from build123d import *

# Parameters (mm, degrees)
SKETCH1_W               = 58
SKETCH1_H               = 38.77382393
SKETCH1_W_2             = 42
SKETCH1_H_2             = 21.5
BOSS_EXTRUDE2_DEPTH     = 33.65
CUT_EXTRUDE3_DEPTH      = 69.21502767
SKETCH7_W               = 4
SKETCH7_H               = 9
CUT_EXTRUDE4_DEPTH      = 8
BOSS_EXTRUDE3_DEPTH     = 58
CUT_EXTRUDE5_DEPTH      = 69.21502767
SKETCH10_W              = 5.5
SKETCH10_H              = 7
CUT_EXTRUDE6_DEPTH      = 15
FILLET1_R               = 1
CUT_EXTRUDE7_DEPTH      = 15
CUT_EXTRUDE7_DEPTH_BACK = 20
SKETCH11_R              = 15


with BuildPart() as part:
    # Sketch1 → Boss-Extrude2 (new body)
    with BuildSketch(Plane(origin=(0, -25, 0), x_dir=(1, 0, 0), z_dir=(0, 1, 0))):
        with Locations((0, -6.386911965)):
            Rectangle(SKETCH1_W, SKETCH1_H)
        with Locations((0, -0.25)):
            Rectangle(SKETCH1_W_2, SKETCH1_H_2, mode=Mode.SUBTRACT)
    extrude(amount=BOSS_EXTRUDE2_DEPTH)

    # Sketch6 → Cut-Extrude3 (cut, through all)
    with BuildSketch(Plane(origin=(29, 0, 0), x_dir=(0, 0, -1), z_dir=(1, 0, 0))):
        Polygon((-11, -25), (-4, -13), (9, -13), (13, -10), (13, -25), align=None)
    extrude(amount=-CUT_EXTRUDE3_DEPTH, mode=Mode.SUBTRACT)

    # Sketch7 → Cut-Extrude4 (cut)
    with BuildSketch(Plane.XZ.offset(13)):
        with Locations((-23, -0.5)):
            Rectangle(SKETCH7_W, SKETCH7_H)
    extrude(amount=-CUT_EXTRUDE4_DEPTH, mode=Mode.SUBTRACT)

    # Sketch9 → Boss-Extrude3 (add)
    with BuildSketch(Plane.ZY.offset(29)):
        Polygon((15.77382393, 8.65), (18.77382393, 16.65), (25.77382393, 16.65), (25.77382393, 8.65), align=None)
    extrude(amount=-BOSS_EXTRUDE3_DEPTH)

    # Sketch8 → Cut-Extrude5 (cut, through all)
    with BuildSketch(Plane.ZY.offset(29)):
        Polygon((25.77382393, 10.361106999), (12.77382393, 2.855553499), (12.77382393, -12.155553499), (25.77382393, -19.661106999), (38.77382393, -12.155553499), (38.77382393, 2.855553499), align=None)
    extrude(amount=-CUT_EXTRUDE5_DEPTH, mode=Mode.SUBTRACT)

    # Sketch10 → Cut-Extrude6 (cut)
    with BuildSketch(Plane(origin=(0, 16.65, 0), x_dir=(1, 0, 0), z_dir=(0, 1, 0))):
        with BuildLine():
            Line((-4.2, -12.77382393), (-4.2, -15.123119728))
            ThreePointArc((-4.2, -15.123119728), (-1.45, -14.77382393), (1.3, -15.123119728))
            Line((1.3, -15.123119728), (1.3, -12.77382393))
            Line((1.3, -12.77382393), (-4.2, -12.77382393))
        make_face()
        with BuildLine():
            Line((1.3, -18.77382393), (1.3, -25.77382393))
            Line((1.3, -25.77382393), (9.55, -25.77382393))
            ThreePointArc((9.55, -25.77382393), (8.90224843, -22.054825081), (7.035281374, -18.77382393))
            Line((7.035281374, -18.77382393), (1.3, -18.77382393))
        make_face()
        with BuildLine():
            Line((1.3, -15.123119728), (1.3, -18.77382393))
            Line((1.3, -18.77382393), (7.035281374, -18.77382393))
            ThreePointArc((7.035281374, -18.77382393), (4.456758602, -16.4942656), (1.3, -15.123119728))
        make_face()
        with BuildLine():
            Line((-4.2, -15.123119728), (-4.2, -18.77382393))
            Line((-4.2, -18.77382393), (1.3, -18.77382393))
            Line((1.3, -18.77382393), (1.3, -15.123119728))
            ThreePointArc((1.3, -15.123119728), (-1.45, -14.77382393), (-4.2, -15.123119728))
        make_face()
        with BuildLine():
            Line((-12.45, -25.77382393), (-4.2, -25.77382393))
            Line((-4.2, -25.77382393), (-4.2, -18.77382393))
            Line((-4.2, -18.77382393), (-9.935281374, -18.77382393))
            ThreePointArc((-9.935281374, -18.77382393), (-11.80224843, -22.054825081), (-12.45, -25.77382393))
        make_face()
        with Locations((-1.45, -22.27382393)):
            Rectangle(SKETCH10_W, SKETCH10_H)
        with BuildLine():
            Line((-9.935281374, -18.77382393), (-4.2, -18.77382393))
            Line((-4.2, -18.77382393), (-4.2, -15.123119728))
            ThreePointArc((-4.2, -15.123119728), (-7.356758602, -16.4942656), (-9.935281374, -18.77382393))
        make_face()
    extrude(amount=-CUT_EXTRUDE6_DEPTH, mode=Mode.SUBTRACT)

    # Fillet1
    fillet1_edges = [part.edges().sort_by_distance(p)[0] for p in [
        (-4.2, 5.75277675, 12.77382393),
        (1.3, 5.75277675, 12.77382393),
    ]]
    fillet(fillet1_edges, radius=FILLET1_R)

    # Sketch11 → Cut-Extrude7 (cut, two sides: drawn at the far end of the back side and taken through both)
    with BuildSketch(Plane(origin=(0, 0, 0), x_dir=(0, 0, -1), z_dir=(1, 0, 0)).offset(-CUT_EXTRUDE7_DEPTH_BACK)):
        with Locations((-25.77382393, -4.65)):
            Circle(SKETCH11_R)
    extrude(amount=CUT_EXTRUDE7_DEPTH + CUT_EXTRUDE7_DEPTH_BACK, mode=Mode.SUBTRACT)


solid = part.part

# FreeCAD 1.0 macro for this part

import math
import FreeCAD as App
import Part
import Sketcher

V = App.Vector
Q = App.Units.Quantity


def edges_at(feature, points):
    """Names of the edges that pass closest to the given points."""
    edges = feature.Shape.Edges
    near = lambda p: min(range(len(edges)), key=lambda i: edges[i].distToShape(Part.Vertex(*p))[0])
    return sorted({f"Edge{near(p) + 1}" for p in points})


def add_polygon(sketch, points):
    """Adds a closed chain of lines whose ends are joined by coincident constraints."""
    first, n = sketch.GeometryCount, len(points)
    for a, b in zip(points, points[1:] + points[:1]):
        sketch.addGeometry(Part.LineSegment(App.Vector(*a, 0), App.Vector(*b, 0)), False)
    for i in range(n):
        sketch.addConstraint(Sketcher.Constraint("Coincident", first + i, 2, first + (i + 1) % n, 1))

doc = App.newDocument("Part")
params = doc.addObject("Spreadsheet::Sheet", "Params")
for row, (alias, value) in enumerate([
    ("sketch1_width", "58 mm"),
    ("sketch1_width2", "42 mm"),
    ("sketch1_height", "21.5 mm"),
    ("pad1_length", "33.65 mm"),
    ("sketch2_width", "15 mm"),
    ("sketch2_height", "24 mm"),
    ("sketch2_height2", "13 mm"),
    ("sketch2_length", "5 mm"),
    ("sketch3_width", "4 mm"),
    ("sketch3_height", "9 mm"),
    ("pocket2_length", "8 mm"),
    ("sketch4_width", "8 mm"),
    ("sketch4_height", "10 mm"),
    ("sketch4_height2", "7 mm"),
    ("pad2_length", "58 mm"),
    ("sketch6_radius", "11 mm"),
    ("sketch6_width", "5.5 mm"),
    ("pocket4_length", "15 mm"),
    ("fillet_radius", "1 mm"),
    ("sketch7_diameter", "30 mm"),
    ("pocket5_length", "15 mm"),
    ("pocket5_length2", "20 mm"),
], start=1):
    params.set(f"A{row}", alias)
    params.set(f"B{row}", "=" + value)
    params.setAlias(f"B{row}", alias)

body = doc.addObject("PartDesign::Body", "Body")

# Sketch on XZ plane
sketch1 = doc.addObject("Sketcher::SketchObject", "Sketch")
body.addObject(sketch1)
sketch1.AttachmentSupport = (doc.XZ_Plane, [""])
sketch1.MapMode = "FlatFace"
sketch1.AttachmentOffset = App.Placement(V(0, 0, 25), App.Rotation())
add_polygon(sketch1, [(-29, -13), (-29, 26), (29, 26), (29, -13)])  # lines 0-3
add_polygon(sketch1, [(21, 11), (-21, 11), (-21, -10), (21, -10)])  # lines 4-7
sketch1.addConstraint([
    Sketcher.Constraint("Vertical", 0),
    Sketcher.Constraint("Horizontal", 1),
    Sketcher.Constraint("Vertical", 2),
    Sketcher.Constraint("Horizontal", 3),
    Sketcher.Constraint("Horizontal", 4),
    Sketcher.Constraint("Vertical", 5),
    Sketcher.Constraint("Horizontal", 6),
    Sketcher.Constraint("Vertical", 7),
    Sketcher.Constraint("DistanceX", 1, 1, 1, 2, 58.0),
    Sketcher.Constraint("DistanceX", 4, 2, 4, 1, 42.0),
    Sketcher.Constraint("DistanceY", 5, 2, 5, 1, 21.5),
    Sketcher.Constraint("DistanceX", 0, 2, -1, 1, 29.0),
    Sketcher.Constraint("DistanceY", 2, 2, -1, 1, 13.0),
    Sketcher.Constraint("DistanceX", 4, 2, -1, 1, 21.0),
    Sketcher.Constraint("DistanceY", -1, 1, 4, 2, 11.0),
    Sketcher.Constraint("DistanceY", 0, 1, 0, 2, 38.773824),
])
sketch1.setExpression("Constraints[16]", "Params.sketch1_width")
sketch1.setExpression("Constraints[17]", "Params.sketch1_width2")
sketch1.setExpression("Constraints[18]", "Params.sketch1_height")
pad1 = doc.addObject("PartDesign::Pad", "Pad")
body.addObject(pad1)
pad1.Profile = sketch1
pad1.setExpression("Length", "Params.pad1_length")
pad1.Reversed = True

# Sketch on YZ plane
sketch2 = doc.addObject("Sketcher::SketchObject", "Sketch001")
body.addObject(sketch2)
sketch2.AttachmentSupport = (doc.YZ_Plane, [""])
sketch2.MapMode = "FlatFace"
sketch2.AttachmentOffset = App.Placement(V(0, 0, 29), App.Rotation())
add_polygon(sketch2, [(-13, 4), (-25, 11), (-25, -13), (-10, -13), (-13, -9)])  # lines 0-4
sketch2.addConstraint([
    Sketcher.Constraint("Vertical", 1),
    Sketcher.Constraint("Horizontal", 2),
    Sketcher.Constraint("Vertical", 4),
    Sketcher.Constraint("DistanceX", 2, 1, 2, 2, 15.0),
    Sketcher.Constraint("DistanceY", 1, 2, 1, 1, 24.0),
    Sketcher.Constraint("DistanceY", 4, 1, 4, 2, 13.0),
    Sketcher.Constraint("Distance", 3, 5.0),
    Sketcher.Constraint("DistanceX", 0, 2, -1, 1, 25.0),
    Sketcher.Constraint("DistanceY", -1, 1, 0, 2, 11.0),
    Sketcher.Constraint("DistanceX", 3, 2, -1, 1, 13.0),
])
sketch2.setExpression("Constraints[8]", "Params.sketch2_width")
sketch2.setExpression("Constraints[9]", "Params.sketch2_height")
sketch2.setExpression("Constraints[10]", "Params.sketch2_height2")
sketch2.setExpression("Constraints[11]", "Params.sketch2_length")
pocket1 = doc.addObject("PartDesign::Pocket", "Pocket")
body.addObject(pocket1)
pocket1.Profile = sketch2
pocket1.Type = "ThroughAll"

# Sketch on XZ plane
sketch3 = doc.addObject("Sketcher::SketchObject", "Sketch002")
body.addObject(sketch3)
sketch3.AttachmentSupport = (doc.XZ_Plane, [""])
sketch3.MapMode = "FlatFace"
sketch3.AttachmentOffset = App.Placement(V(0, 0, 13), App.Rotation())
add_polygon(sketch3, [(-25, 4), (-25, -5), (-21, -5), (-21, 4)])  # lines 0-3
sketch3.addConstraint([
    Sketcher.Constraint("Vertical", 0),
    Sketcher.Constraint("Horizontal", 1),
    Sketcher.Constraint("Vertical", 2),
    Sketcher.Constraint("Horizontal", 3),
    Sketcher.Constraint("DistanceX", 1, 1, 1, 2, 4.0),
    Sketcher.Constraint("DistanceY", 0, 2, 0, 1, 9.0),
    Sketcher.Constraint("DistanceX", 0, 2, -1, 1, 25.0),
    Sketcher.Constraint("DistanceY", 0, 2, -1, 1, 5.0),
])
sketch3.setExpression("Constraints[8]", "Params.sketch3_width")
sketch3.setExpression("Constraints[9]", "Params.sketch3_height")
pocket2 = doc.addObject("PartDesign::Pocket", "Pocket001")
body.addObject(pocket2)
pocket2.Profile = sketch3
pocket2.setExpression("Length", "Params.pocket2_length")

# Sketch on YZ plane
sketch4 = doc.addObject("Sketcher::SketchObject", "Sketch003")
body.addObject(sketch4)
sketch4.AttachmentSupport = (doc.YZ_Plane, [""])
sketch4.MapMode = "FlatFace"
sketch4.AttachmentOffset = App.Placement(V(0, 0, -29), App.Rotation())
add_polygon(sketch4, [(17, 19), (9, 16), (9, 26), (17, 26)])  # lines 0-3
sketch4.addConstraint([
    Sketcher.Constraint("Vertical", 1),
    Sketcher.Constraint("Horizontal", 2),
    Sketcher.Constraint("Vertical", 3),
    Sketcher.Constraint("DistanceX", 2, 1, 2, 2, 8.0),
    Sketcher.Constraint("DistanceY", 1, 1, 1, 2, 10.0),
    Sketcher.Constraint("DistanceY", 3, 2, 3, 1, 7.0),
    Sketcher.Constraint("DistanceX", -1, 1, 0, 2, 8.65),
    Sketcher.Constraint("DistanceY", -1, 1, 0, 2, 15.773824),
])
sketch4.setExpression("Constraints[7]", "Params.sketch4_width")
sketch4.setExpression("Constraints[8]", "Params.sketch4_height")
sketch4.setExpression("Constraints[9]", "Params.sketch4_height2")
pad2 = doc.addObject("PartDesign::Pad", "Pad001")
body.addObject(pad2)
pad2.Profile = sketch4
pad2.setExpression("Length", "Params.pad2_length")

# Sketch on YZ plane
sketch5 = doc.addObject("Sketcher::SketchObject", "Sketch004")
body.addObject(sketch5)
sketch5.AttachmentSupport = (doc.YZ_Plane, [""])
sketch5.MapMode = "FlatFace"
sketch5.AttachmentOffset = App.Placement(V(0, 0, -29), App.Rotation())
add_polygon(sketch5, [(10, 26), (3, 13), (-12, 13), (-20, 26), (-12, 39), (3, 39)])  # lines 0-5
sketch5.addConstraint([
    Sketcher.Constraint("Horizontal", 1),
    Sketcher.Constraint("Horizontal", 4),
    Sketcher.Constraint("Parallel", 0, 3),
    Sketcher.Constraint("Parallel", 2, 5),
    Sketcher.Constraint("Horizontal", 2, 2, 5, 2),
    Sketcher.Constraint("Vertical", 1, 2, 3, 2),
    Sketcher.Constraint("Vertical", 0, 2, 4, 2),
    Sketcher.Constraint("Angle", 0, Q("-120 deg")),
    Sketcher.Constraint("DistanceY", 1, 2, 2, 2, 13.0),
    Sketcher.Constraint("DistanceX", 1, 2, 1, 1, 15.011107),
    Sketcher.Constraint("DistanceX", -1, 1, 0, 2, 2.855553),
    Sketcher.Constraint("DistanceY", -1, 1, 0, 2, 12.773824),
])
pocket3 = doc.addObject("PartDesign::Pocket", "Pocket002")
body.addObject(pocket3)
pocket3.Profile = sketch5
pocket3.Type = "ThroughAll"
pocket3.Reversed = True

# Sketch on XZ plane
sketch6 = doc.addObject("Sketcher::SketchObject", "Sketch005")
body.addObject(sketch6)
sketch6.AttachmentSupport = (doc.XZ_Plane, [""])
sketch6.MapMode = "FlatFace"
sketch6.AttachmentOffset = App.Placement(V(0, 0, -16.65), App.Rotation())
sketch6.addGeometry([
    Part.LineSegment(V(-4.2, 12.8, 0), V(-4.2, 15.1, 0)),  # 0
    Part.ArcOfCircle(Part.Circle(V(-1.4, 25.8, 0), V(0, 0, 1), 11), math.radians(-140), math.radians(-104)),  # 1
    Part.ArcOfCircle(Part.Circle(V(-1.4, 25.8, 0), V(0, 0, 1), 11), math.radians(-180), math.radians(-140)),  # 2
    Part.LineSegment(V(-12.4, 25.8, 0), V(9.6, 25.8, 0)),  # 3
    Part.ArcOfCircle(Part.Circle(V(-1.5, 25.8, 0), V(0, 0, 1), 11), math.radians(-40), math.radians(0)),  # 4
    Part.ArcOfCircle(Part.Circle(V(-1.5, 25.8, 0), V(0, 0, 1), 11), math.radians(-76), math.radians(-40)),  # 5
    Part.LineSegment(V(1.3, 15.1, 0), V(1.3, 12.8, 0)),  # 6
    Part.LineSegment(V(1.3, 12.8, 0), V(-4.2, 12.8, 0)),  # 7
], False)
sketch6.addConstraint([
    Sketcher.Constraint("Coincident", 0, 2, 1, 2),
    Sketcher.Constraint("Tangent", 1, 1, 2, 2),
    Sketcher.Constraint("Coincident", 2, 1, 3, 1),
    Sketcher.Constraint("Coincident", 3, 2, 4, 2),
    Sketcher.Constraint("Tangent", 4, 1, 5, 2),
    Sketcher.Constraint("Coincident", 5, 1, 6, 1),
    Sketcher.Constraint("Coincident", 6, 2, 7, 1),
    Sketcher.Constraint("Coincident", 7, 2, 0, 1),
    Sketcher.Constraint("Vertical", 0),
    Sketcher.Constraint("Horizontal", 3),
    Sketcher.Constraint("Vertical", 6),
    Sketcher.Constraint("Horizontal", 7),
    Sketcher.Constraint("Coincident", 4, 3, 1, 3),
    Sketcher.Constraint("Equal", 1, 2),
    Sketcher.Constraint("Equal", 2, 4),
    Sketcher.Constraint("Equal", 4, 5),
    Sketcher.Constraint("Horizontal", 5, 3, 2, 1),
    Sketcher.Constraint("Horizontal", 1, 1, 4, 1),
    Sketcher.Constraint("Horizontal", 0, 2, 5, 1),
    Sketcher.Constraint("Radius", 1, 11.0),
    Sketcher.Constraint("DistanceX", 7, 2, 7, 1, 5.5),
    Sketcher.Constraint("DistanceY", 1, 1, 4, 3, 7.0),
    Sketcher.Constraint("DistanceY", 6, 2, 4, 1, 6.0),
    Sketcher.Constraint("DistanceX", 0, 2, -1, 1, 4.2),
    Sketcher.Constraint("DistanceY", -1, 1, 0, 2, 15.12312),
])
sketch6.setExpression("Constraints[19]", "Params.sketch6_radius")
sketch6.setExpression("Constraints[20]", "Params.sketch6_width")
pocket4 = doc.addObject("PartDesign::Pocket", "Pocket003")
body.addObject(pocket4)
pocket4.Profile = sketch6
pocket4.setExpression("Length", "Params.pocket4_length")
pocket4.Reversed = True
doc.recompute()

fillet = doc.addObject("PartDesign::Fillet", "Fillet")
body.addObject(fillet)
fillet.Base = (pocket4, edges_at(pocket4, [(-4.2, 5.753, 12.774), (1.3, 5.753, 12.774)]))
fillet.setExpression("Radius", "Params.fillet_radius")

# Sketch on YZ plane
sketch7 = doc.addObject("Sketcher::SketchObject", "Sketch006")
body.addObject(sketch7)
sketch7.AttachmentSupport = (doc.YZ_Plane, [""])
sketch7.MapMode = "FlatFace"
sketch7.addGeometry(Part.Circle(V(-5, 26, 0), V(0, 0, 1), 15), False)
sketch7.addConstraint([
    Sketcher.Constraint("Diameter", 0, 30.0),
    Sketcher.Constraint("DistanceX", 0, 3, -1, 1, 4.65),
    Sketcher.Constraint("DistanceY", -1, 1, 0, 3, 25.773824),
])
sketch7.setExpression("Constraints[0]", "Params.sketch7_diameter")
pocket5 = doc.addObject("PartDesign::Pocket", "Pocket004")
body.addObject(pocket5)
pocket5.Profile = sketch7
pocket5.Type = "TwoLengths"
pocket5.setExpression("Length", "Params.pocket5_length")
pocket5.setExpression("Length2", "Params.pocket5_length2")
pocket5.Reversed = True

doc.recompute()
